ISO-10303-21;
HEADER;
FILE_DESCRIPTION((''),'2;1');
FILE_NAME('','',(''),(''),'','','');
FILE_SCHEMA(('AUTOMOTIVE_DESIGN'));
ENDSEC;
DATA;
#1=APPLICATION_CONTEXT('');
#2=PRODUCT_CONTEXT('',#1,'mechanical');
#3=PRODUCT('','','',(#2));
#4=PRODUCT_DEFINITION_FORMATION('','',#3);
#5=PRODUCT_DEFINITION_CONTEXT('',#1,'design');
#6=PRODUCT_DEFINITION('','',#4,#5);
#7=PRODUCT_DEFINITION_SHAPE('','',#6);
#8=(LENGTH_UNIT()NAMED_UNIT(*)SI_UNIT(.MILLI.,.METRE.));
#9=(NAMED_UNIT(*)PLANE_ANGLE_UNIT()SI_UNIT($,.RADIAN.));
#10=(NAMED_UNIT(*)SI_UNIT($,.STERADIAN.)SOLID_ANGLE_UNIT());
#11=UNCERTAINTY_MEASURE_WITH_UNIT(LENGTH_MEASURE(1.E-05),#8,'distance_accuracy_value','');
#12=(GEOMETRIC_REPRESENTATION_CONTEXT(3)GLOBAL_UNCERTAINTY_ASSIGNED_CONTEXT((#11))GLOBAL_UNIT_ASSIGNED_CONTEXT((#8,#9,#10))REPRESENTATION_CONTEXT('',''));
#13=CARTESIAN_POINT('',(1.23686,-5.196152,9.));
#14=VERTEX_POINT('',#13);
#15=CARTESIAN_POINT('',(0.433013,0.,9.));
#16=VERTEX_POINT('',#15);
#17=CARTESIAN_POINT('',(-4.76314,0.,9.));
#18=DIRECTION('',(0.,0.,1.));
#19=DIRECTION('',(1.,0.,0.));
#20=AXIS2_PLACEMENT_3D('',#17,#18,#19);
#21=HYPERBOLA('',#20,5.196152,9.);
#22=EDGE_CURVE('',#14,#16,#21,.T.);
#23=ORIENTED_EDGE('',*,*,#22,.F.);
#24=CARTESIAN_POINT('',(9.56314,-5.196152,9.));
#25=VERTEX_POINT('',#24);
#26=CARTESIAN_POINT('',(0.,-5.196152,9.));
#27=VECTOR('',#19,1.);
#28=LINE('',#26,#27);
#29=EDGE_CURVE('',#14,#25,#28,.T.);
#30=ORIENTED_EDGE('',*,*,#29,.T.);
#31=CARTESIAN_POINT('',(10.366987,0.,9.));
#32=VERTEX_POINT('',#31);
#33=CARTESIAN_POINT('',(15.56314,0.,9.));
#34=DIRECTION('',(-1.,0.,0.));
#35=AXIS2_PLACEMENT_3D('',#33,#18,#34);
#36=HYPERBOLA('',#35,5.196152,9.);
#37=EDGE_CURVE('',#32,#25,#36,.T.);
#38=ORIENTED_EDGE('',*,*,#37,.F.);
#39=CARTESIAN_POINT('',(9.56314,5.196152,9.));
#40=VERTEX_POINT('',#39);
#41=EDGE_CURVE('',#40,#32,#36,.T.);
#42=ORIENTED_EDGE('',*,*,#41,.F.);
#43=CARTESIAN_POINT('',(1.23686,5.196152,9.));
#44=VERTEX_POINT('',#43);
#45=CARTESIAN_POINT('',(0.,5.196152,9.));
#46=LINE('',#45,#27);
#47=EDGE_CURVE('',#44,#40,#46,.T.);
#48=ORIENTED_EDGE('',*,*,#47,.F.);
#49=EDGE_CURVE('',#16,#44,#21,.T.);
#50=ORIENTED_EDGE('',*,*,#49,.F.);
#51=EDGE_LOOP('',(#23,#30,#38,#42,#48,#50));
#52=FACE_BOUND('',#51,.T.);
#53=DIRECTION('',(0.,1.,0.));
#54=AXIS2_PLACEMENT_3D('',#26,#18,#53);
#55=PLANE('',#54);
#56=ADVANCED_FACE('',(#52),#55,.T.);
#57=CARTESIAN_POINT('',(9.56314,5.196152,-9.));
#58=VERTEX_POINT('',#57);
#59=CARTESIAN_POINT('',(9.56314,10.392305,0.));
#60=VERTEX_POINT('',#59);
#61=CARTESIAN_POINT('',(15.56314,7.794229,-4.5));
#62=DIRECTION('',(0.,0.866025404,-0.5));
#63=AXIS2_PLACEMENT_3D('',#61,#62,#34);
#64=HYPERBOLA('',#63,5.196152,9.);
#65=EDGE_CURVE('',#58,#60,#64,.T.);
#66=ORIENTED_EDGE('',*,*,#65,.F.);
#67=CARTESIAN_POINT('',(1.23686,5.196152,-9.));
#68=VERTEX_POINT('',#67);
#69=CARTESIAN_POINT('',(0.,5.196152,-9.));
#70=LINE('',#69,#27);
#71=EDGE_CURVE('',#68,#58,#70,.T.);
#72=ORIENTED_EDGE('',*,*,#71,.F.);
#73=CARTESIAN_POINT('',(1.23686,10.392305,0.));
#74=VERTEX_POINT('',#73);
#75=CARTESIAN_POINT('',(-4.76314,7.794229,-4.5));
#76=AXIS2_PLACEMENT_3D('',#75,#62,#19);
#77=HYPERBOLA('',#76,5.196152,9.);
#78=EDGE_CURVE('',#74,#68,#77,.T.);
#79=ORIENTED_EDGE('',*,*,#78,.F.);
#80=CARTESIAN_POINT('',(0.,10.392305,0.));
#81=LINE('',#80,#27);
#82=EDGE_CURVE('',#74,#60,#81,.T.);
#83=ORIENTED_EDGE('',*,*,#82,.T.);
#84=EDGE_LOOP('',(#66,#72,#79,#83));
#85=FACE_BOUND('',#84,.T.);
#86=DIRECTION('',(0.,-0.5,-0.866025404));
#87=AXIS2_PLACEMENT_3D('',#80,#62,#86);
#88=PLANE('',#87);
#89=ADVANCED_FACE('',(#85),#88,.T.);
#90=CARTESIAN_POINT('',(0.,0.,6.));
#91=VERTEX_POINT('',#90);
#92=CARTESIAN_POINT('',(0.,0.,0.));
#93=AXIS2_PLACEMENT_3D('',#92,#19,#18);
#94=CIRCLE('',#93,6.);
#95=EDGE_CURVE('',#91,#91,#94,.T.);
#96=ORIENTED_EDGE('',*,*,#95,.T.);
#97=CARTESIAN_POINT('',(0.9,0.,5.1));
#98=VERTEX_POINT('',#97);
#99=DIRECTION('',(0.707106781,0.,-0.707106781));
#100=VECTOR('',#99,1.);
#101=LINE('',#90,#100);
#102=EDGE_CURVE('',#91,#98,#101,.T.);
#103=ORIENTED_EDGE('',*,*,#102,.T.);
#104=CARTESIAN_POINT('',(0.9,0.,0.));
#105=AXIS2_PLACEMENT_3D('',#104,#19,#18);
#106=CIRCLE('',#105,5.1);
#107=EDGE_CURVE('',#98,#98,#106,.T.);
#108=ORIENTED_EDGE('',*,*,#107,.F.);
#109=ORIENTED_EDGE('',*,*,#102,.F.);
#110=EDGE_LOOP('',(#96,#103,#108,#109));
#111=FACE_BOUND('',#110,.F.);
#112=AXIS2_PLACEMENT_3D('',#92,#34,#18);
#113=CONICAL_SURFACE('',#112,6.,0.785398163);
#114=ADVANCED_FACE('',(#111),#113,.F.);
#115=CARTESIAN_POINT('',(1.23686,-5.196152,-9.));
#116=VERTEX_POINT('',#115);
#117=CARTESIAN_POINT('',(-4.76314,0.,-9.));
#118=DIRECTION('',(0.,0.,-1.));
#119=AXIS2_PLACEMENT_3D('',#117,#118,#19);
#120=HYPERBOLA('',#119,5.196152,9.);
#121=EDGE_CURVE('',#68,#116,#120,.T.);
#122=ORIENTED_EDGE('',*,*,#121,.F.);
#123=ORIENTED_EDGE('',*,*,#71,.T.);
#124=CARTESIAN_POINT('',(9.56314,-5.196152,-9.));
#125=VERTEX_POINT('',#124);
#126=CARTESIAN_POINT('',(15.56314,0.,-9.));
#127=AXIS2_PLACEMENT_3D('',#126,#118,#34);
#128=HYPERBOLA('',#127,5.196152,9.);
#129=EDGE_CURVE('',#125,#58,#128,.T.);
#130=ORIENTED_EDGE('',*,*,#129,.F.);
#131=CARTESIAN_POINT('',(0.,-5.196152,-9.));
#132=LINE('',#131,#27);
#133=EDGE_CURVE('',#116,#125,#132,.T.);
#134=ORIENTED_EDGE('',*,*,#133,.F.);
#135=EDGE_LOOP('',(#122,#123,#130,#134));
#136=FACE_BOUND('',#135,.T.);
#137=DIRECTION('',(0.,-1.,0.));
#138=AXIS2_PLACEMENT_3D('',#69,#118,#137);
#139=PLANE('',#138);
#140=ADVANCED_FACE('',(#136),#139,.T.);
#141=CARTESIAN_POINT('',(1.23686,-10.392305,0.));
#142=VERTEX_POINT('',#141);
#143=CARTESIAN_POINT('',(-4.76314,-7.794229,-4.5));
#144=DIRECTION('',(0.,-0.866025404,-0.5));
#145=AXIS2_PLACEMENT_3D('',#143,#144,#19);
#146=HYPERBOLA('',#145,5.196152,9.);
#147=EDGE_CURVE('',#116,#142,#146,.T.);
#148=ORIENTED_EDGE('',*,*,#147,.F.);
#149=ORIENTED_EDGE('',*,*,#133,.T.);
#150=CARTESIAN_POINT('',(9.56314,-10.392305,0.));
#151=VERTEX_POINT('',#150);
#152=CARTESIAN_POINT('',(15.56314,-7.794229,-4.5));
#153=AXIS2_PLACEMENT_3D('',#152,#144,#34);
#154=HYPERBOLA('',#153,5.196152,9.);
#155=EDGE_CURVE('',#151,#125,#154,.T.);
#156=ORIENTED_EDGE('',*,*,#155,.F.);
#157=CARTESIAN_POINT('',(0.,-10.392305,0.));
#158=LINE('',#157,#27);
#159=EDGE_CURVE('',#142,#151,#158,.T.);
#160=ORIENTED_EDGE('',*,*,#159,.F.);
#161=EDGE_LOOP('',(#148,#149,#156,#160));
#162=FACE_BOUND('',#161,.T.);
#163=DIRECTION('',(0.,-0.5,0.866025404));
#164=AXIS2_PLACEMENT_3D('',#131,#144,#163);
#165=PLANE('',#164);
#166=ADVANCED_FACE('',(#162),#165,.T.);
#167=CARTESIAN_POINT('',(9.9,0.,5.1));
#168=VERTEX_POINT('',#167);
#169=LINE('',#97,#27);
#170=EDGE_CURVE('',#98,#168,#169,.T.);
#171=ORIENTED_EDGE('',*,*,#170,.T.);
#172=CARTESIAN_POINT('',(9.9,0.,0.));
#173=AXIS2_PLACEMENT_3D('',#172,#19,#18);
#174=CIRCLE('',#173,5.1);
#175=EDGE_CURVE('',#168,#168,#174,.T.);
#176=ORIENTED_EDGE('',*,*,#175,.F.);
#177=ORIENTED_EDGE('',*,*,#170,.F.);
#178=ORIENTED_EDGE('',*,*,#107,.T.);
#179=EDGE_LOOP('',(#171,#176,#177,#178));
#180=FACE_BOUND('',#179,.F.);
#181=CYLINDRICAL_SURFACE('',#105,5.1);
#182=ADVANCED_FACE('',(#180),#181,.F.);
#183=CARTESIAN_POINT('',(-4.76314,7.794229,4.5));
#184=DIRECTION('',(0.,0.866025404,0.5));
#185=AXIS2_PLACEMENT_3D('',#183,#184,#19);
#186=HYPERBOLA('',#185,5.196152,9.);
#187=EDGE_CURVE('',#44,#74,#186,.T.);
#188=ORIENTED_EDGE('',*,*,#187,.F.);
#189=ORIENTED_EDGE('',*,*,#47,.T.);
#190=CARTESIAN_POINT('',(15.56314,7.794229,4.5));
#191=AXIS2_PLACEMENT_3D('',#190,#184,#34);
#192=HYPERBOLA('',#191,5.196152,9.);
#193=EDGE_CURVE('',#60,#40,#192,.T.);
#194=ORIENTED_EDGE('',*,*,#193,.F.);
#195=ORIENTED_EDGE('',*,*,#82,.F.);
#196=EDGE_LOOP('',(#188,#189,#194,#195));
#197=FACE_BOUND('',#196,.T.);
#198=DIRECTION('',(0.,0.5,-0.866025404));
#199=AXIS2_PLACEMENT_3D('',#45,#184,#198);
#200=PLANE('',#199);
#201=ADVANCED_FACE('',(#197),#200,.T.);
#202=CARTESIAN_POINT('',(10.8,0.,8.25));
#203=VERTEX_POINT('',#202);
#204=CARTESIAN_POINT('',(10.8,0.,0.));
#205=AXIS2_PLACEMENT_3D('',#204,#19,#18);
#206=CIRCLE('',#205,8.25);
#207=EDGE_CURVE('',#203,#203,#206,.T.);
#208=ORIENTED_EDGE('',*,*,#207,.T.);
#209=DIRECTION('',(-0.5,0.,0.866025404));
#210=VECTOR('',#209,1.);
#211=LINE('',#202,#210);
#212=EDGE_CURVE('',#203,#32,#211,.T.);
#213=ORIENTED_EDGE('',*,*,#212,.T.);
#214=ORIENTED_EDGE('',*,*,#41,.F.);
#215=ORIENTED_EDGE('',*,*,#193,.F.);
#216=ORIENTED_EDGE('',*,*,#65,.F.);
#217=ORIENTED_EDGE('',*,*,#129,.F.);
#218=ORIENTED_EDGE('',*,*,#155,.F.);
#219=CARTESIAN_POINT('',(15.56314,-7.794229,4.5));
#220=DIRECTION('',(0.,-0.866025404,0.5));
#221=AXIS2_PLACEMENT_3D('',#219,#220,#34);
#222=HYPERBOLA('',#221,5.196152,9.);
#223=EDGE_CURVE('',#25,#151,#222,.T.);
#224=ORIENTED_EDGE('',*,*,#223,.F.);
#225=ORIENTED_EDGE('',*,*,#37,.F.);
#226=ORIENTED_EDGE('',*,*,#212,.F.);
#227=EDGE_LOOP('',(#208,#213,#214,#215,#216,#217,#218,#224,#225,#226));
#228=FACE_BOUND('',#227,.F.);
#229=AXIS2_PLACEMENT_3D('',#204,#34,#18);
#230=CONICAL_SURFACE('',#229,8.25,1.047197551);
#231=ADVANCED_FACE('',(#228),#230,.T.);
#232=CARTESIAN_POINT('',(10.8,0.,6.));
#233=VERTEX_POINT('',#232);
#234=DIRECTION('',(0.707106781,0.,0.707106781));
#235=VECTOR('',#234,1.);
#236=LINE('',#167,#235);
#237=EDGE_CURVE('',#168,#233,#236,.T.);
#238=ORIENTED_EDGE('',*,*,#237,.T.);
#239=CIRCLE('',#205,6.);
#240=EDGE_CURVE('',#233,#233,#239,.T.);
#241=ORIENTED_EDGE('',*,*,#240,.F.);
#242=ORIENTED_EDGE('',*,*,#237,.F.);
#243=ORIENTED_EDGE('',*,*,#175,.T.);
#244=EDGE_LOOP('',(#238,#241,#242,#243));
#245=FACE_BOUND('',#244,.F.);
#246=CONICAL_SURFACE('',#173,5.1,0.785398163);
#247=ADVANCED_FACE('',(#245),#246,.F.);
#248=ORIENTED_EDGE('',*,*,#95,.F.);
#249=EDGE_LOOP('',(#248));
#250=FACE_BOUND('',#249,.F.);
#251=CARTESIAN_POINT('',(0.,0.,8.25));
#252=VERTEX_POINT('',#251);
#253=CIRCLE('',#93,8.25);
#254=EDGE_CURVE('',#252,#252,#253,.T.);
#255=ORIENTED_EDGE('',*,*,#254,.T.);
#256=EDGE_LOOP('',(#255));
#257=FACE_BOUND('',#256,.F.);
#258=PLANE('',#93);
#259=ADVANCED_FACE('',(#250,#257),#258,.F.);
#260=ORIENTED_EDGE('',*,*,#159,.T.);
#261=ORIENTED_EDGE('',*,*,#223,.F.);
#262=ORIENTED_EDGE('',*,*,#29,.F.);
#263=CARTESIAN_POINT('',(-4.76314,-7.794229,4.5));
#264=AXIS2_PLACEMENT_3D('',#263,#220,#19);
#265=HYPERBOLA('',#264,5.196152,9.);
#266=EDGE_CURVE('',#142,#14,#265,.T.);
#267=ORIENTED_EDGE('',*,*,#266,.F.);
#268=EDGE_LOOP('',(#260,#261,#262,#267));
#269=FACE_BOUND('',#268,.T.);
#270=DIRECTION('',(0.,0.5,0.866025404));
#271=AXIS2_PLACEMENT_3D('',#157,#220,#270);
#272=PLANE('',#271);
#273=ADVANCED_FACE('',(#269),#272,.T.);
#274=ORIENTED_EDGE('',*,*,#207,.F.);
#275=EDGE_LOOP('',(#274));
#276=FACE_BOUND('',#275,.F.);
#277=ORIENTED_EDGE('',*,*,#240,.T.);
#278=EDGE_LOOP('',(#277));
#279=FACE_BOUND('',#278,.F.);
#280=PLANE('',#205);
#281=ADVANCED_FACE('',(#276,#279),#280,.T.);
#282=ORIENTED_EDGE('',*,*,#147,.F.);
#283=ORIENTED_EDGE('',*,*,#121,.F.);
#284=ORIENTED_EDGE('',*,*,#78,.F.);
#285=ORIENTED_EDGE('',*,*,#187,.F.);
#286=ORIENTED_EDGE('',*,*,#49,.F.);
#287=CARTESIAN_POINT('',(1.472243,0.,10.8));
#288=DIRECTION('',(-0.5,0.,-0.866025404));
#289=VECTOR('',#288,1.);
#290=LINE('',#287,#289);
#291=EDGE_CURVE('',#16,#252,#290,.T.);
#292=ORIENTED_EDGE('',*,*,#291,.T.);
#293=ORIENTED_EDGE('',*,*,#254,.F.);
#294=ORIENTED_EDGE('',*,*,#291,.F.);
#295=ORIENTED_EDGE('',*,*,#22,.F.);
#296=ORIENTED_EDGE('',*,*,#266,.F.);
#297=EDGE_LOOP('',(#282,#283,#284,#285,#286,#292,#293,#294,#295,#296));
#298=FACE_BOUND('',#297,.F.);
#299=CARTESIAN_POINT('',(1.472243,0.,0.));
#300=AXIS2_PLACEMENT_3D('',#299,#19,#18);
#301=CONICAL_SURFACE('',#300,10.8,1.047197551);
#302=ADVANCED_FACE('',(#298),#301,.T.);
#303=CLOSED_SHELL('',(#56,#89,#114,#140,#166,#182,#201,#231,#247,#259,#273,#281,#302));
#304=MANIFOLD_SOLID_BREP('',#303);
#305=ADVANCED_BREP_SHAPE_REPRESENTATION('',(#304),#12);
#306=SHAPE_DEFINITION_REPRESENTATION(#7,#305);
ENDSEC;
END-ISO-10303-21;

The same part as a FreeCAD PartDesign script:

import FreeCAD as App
import Part
import Sketcher
from FreeCAD import Vector
Q = App.Units.Quantity


def add_polygon(sketch, points):
    """Adds a closed chain of lines whose ends are joined by coincident constraints."""
    first, n = sketch.GeometryCount, len(points)
    for a, b in zip(points, points[1:] + points[:1]):
        sketch.addGeometry(Part.LineSegment(App.Vector(*a, 0), App.Vector(*b, 0)), False)
    for i in range(n):
        sketch.addConstraint(Sketcher.Constraint("Coincident", first + i, 2, first + (i + 1) % n, 1))

doc = App.newDocument("Part")
body = doc.addObject("PartDesign::Body", "Body")

sketch1 = body.newObject("Sketcher::SketchObject", "Sketch")
sketch1.AttachmentSupport = (doc.getObject("XY_Plane"), [""])
sketch1.MapMode = "FlatFace"
add_polygon(sketch1, [(0.9, 5.1), (9.9, 5.1), (10.8, 6), (10.8, 8.2), (9.3, 10.8), (1.5, 10.8), (0, 8.2), (0, 6)])
sketch1.addConstraint([
    Sketcher.Constraint("Horizontal", 0),
    Sketcher.Constraint("Vertical", 2),
    Sketcher.Constraint("Horizontal", 4),
    Sketcher.Constraint("Vertical", 6),
    Sketcher.Constraint("PointOnObject", 5, 2, -2),
    Sketcher.Constraint("Perpendicular", 1, 7),
    Sketcher.Constraint("Horizontal", 2, 2, 5, 2),
    Sketcher.Constraint("Horizontal", 1, 2, 6, 2),
    Sketcher.Constraint("Equal", 3, 5),
    Sketcher.Constraint("Equal", 1, 7),
    Sketcher.Constraint("DistanceX", 0, 1, 0, 2, Q("9 mm")),
    Sketcher.Constraint("Angle", 3, Q("120 deg")),
    Sketcher.Constraint("DistanceY", -1, 1, 1, 2, Q("6 mm")),
    Sketcher.Constraint("DistanceY", 2, 1, 2, 2, Q("2.25 mm")),
    Sketcher.Constraint("DistanceX", -1, 1, 0, 2, Q("9.9 mm")),
    Sketcher.Constraint("DistanceY", -1, 1, 3, 2, Q("10.8 mm")),
])
revolution = body.newObject("PartDesign::Revolution", "Revolution")
revolution.Profile = sketch1
revolution.ReferenceAxis = (sketch1, ["H_Axis"])
revolution.Angle = 360

sketch2 = body.newObject("Sketcher::SketchObject", "Sketch001")
sketch2.AttachmentSupport = (doc.getObject("YZ_Plane"), [""])
sketch2.MapMode = "FlatFace"
add_polygon(sketch2, [(15, -15), (-15, -15), (-15, 15), (15, 15)])
add_polygon(sketch2, [(5, -9), (10, 0), (5, 9), (-5, 9), (-10, 0), (-5, -9)])
sketch2.addConstraint([
    Sketcher.Constraint("Horizontal", 0),
    Sketcher.Constraint("Vertical", 1),
    Sketcher.Constraint("Horizontal", 2),
    Sketcher.Constraint("Vertical", 3),
    Sketcher.Constraint("Horizontal", 6),
    Sketcher.Constraint("Horizontal", 9),
    Sketcher.Constraint("Symmetric", 0, 2, 2, 2, -1, 1),
    Sketcher.Constraint("Symmetric", 4, 2, 7, 2, -1, 1),
    Sketcher.Constraint("Symmetric", 5, 2, 8, 2, -1, 1),
    Sketcher.Constraint("PointOnObject", 4, 2, -1),
    Sketcher.Constraint("Parallel", 4, 7),
    Sketcher.Constraint("Vertical", 6, 2, 8, 2),
    Sketcher.Constraint("Equal", 2, 1),
    Sketcher.Constraint("Angle", 4, Q("60 deg")),
    Sketcher.Constraint("DistanceY", -1, 1, 5, 2, Q("9 mm")),
    Sketcher.Constraint("DistanceX", 0, 2, 0, 1, Q("30.08 mm")),
    Sketcher.Constraint("DistanceX", 6, 2, 6, 1, Q("10.392305 mm")),
])
pocket1 = body.newObject("PartDesign::Pocket", "Pocket")
pocket1.Profile = sketch2
pocket1.Type = "ThroughAll"
pocket1.Reversed = True

doc.recompute()
